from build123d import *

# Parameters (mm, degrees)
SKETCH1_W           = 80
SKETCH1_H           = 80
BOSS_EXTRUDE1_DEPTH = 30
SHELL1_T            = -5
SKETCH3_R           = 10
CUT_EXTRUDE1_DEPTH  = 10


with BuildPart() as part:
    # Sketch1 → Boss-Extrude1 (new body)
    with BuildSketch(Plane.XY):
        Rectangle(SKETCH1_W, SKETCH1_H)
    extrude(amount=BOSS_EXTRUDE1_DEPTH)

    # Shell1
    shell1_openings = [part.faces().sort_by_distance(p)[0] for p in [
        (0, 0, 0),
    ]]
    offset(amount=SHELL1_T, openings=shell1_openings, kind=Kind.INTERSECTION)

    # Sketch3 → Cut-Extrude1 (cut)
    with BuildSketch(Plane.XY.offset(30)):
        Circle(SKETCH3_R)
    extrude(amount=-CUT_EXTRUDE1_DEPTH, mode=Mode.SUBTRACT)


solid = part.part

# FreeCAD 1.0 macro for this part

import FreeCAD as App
import Part
import Sketcher
from FreeCAD import Vector
Q = App.Units.Quantity


def faces_at(feature, points):
    """Names of the faces that lie closest to the given points."""
    faces = feature.Shape.Faces
    near = lambda p: min(range(len(faces)), key=lambda i: faces[i].distToShape(Part.Vertex(*p))[0])
    return sorted({f"Face{near(p) + 1}" for p in points})


def add_polygon(sketch, points):
    """Adds a closed chain of lines whose ends are joined by coincident constraints."""
    first, n = sketch.GeometryCount, len(points)
    for a, b in zip(points, points[1:] + points[:1]):
        sketch.addGeometry(Part.LineSegment(App.Vector(*a, 0), App.Vector(*b, 0)), False)
    for i in range(n):
        sketch.addConstraint(Sketcher.Constraint("Coincident", first + i, 2, first + (i + 1) % n, 1))

doc = App.newDocument("Part")
body = doc.addObject("PartDesign::Body", "Body")

# Sketch on XY plane
sketch1 = body.newObject("Sketcher::SketchObject", "Sketch")
sketch1.AttachmentSupport = (doc.getObject("XY_Plane"), [""])
sketch1.MapMode = "FlatFace"
add_polygon(sketch1, [(-40, 40), (-40, -40), (40, -40), (40, 40)])  # lines 0-3
sketch1.addConstraint(Sketcher.Constraint("Vertical", 0))
sketch1.addConstraint(Sketcher.Constraint("Horizontal", 1))
sketch1.addConstraint(Sketcher.Constraint("Vertical", 2))
sketch1.addConstraint(Sketcher.Constraint("Horizontal", 3))
sketch1.addConstraint(Sketcher.Constraint("Symmetric", 0, 2, 2, 2, -1, 1))
sketch1.addConstraint(Sketcher.Constraint("Equal", 3, 0))
sketch1.addConstraint(Sketcher.Constraint("DistanceX", 1, 1, 1, 2, Q("80 mm")))
pad1 = body.newObject("PartDesign::Pad", "Pad")
pad1.Profile = sketch1
pad1.Length = 30
doc.recompute()

thickness = body.newObject("PartDesign::Thickness", "Thickness")
thickness.Base = (pad1, faces_at(pad1, [(0, 0, 0)]))
thickness.Value = 5
thickness.Reversed = True
thickness.Join = "Intersection"

# Sketch on XY plane
sketch2 = body.newObject("Sketcher::SketchObject", "Sketch001")
sketch2.AttachmentSupport = (doc.getObject("XY_Plane"), [""])
sketch2.MapMode = "FlatFace"
sketch2.AttachmentOffset = App.Placement(Vector(0, 0, 30), App.Rotation())
sketch2.addGeometry(Part.Circle(Vector(0, 0, 0), Vector(0, 0, 1), 10), False)
sketch2.addConstraint(Sketcher.Constraint("Coincident", 0, 3, -1, 1))
sketch2.addConstraint(Sketcher.Constraint("Diameter", 0, Q("20 mm")))
pocket1 = body.newObject("PartDesign::Pocket", "Pocket")
pocket1.Profile = sketch2
pocket1.Length = 10

doc.recompute()
